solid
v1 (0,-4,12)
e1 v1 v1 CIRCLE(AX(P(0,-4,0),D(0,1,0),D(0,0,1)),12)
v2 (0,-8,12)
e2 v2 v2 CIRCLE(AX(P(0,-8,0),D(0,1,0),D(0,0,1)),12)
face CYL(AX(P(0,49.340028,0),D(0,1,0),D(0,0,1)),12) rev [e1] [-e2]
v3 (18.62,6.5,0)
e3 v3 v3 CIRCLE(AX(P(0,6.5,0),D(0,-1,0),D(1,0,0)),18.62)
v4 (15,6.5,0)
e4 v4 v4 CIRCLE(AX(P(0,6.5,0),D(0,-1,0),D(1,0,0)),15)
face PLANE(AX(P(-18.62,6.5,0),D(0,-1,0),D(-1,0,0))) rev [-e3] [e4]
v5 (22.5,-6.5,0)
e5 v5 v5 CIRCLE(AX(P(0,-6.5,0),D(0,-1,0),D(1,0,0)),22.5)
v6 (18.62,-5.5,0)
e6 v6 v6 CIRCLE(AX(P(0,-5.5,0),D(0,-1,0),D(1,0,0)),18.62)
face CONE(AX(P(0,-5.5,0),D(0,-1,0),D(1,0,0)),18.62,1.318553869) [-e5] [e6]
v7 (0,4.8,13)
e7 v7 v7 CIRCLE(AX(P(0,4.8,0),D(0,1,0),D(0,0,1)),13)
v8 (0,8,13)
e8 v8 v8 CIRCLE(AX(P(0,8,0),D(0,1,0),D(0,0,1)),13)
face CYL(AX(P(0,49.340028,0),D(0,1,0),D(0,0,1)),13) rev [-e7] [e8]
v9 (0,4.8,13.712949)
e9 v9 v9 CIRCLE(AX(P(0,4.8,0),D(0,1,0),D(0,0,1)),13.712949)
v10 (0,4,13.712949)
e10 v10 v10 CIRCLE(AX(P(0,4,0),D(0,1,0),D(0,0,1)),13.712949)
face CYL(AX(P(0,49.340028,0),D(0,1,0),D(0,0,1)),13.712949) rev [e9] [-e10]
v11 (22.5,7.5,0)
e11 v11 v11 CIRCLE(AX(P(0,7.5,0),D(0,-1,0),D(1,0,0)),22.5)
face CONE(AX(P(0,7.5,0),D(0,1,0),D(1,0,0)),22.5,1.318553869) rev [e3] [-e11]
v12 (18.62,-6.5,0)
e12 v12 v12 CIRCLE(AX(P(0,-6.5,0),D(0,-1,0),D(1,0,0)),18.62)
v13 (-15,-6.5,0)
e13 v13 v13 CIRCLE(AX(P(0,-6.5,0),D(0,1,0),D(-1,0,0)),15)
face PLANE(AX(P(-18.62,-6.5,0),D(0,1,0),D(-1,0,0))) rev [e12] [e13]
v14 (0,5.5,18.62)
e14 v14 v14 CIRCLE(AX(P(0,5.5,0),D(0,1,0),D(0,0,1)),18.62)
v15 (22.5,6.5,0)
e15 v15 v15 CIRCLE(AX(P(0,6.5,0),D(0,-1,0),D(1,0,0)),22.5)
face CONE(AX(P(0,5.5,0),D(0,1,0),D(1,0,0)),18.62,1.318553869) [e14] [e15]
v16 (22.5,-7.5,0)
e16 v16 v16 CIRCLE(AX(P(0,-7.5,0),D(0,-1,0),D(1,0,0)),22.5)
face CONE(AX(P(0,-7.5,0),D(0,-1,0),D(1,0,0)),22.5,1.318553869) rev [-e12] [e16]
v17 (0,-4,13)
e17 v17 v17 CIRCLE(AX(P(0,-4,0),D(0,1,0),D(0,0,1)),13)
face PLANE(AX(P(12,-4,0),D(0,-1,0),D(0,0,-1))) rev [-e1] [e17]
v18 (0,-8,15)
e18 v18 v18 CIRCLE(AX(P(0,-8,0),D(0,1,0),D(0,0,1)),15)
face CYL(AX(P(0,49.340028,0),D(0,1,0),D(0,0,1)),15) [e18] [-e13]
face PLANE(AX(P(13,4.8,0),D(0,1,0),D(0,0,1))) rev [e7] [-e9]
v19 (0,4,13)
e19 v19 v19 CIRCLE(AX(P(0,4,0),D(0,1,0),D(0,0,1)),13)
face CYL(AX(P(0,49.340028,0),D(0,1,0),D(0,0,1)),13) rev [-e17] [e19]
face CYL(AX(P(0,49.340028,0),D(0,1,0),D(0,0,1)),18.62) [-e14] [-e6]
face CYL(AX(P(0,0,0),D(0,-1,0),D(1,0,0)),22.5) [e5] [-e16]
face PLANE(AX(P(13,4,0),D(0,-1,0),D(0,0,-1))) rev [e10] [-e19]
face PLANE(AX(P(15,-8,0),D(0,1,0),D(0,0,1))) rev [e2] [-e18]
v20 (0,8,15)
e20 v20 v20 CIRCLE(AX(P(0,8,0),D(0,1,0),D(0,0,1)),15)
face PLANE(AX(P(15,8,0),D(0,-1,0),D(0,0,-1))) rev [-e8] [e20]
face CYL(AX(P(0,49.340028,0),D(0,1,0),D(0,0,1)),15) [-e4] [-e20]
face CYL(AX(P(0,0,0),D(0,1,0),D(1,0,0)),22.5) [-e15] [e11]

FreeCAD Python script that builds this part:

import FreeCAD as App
import Part
import Sketcher

V = App.Vector
Q = App.Units.Quantity

doc = App.newDocument("Part")
body = doc.addObject("PartDesign::Body", "Body")

# Sketch on XY plane
sketch1 = body.newObject("Sketcher::SketchObject", "Sketch")
sketch1.AttachmentSupport = (doc.getObject("XY_Plane"), [""])
sketch1.MapMode = "FlatFace"
sketch1.addGeometry([
    Part.LineSegment(V(13, 4, 0), V(13, -4, 0)),  # 0
    Part.LineSegment(V(13, -4, 0), V(12, -4, 0)),  # 1
    Part.LineSegment(V(12, -4, 0), V(12, -8, 0)),  # 2
    Part.LineSegment(V(12, -8, 0), V(15, -8, 0)),  # 3
    Part.LineSegment(V(15, -8, 0), V(15, -5.5, 0)),  # 4
    Part.LineSegment(V(15, -5.5, 0), V(18.6, -5.5, 0)),  # 5
    Part.LineSegment(V(18.6, -5.5, 0), V(18.6, 5.5, 0)),  # 6
    Part.LineSegment(V(18.6, 5.5, 0), V(15, 5.5, 0)),  # 7
    Part.LineSegment(V(15, 5.5, 0), V(15, 8, 0)),  # 8
    Part.LineSegment(V(15, 8, 0), V(13, 8, 0)),  # 9
    Part.LineSegment(V(13, 8, 0), V(13, 4.8, 0)),  # 10
    Part.LineSegment(V(13, 4.8, 0), V(13.7, 4.8, 0)),  # 11
    Part.LineSegment(V(13.7, 4.8, 0), V(13.7, 4, 0)),  # 12
    Part.LineSegment(V(13.7, 4, 0), V(13, 4, 0)),  # 13
], False)
sketch1.addConstraint([
    Sketcher.Constraint("Coincident", 0, 2, 1, 1),
    Sketcher.Constraint("Coincident", 1, 2, 2, 1),
    Sketcher.Constraint("Coincident", 2, 2, 3, 1),
    Sketcher.Constraint("Coincident", 3, 2, 4, 1),
    Sketcher.Constraint("Coincident", 4, 2, 5, 1),
    Sketcher.Constraint("Coincident", 5, 2, 6, 1),
    Sketcher.Constraint("Coincident", 6, 2, 7, 1),
    Sketcher.Constraint("Coincident", 7, 2, 8, 1),
    Sketcher.Constraint("Coincident", 8, 2, 9, 1),
    Sketcher.Constraint("Coincident", 9, 2, 10, 1),
    Sketcher.Constraint("Coincident", 10, 2, 11, 1),
    Sketcher.Constraint("Coincident", 11, 2, 12, 1),
    Sketcher.Constraint("Coincident", 12, 2, 13, 1),
    Sketcher.Constraint("Coincident", 13, 2, 0, 1),
    Sketcher.Constraint("Vertical", 0),
    Sketcher.Constraint("Horizontal", 1),
    Sketcher.Constraint("Vertical", 2),
    Sketcher.Constraint("Horizontal", 3),
    Sketcher.Constraint("Vertical", 4),
    Sketcher.Constraint("Horizontal", 5),
    Sketcher.Constraint("Vertical", 6),
    Sketcher.Constraint("Horizontal", 7),
    Sketcher.Constraint("Vertical", 8),
    Sketcher.Constraint("Horizontal", 9),
    Sketcher.Constraint("Vertical", 10),
    Sketcher.Constraint("Horizontal", 11),
    Sketcher.Constraint("Vertical", 12),
    Sketcher.Constraint("Horizontal", 13),
    Sketcher.Constraint("Symmetric", 4, 2, 7, 2, -1),
    Sketcher.Constraint("Vertical", 0, 2, 9, 2),
    Sketcher.Constraint("Equal", 4, 8),
    Sketcher.Constraint("DistanceX", 1, 2, 1, 1, Q("1 mm")),
    Sketcher.Constraint("DistanceX", 3, 1, 3, 2, Q("3 mm")),
    Sketcher.Constraint("DistanceY", 0, 2, 0, 1, Q("8 mm")),
    Sketcher.Constraint("DistanceY", 2, 2, 2, 1, Q("4 mm")),
    Sketcher.Constraint("DistanceY", 6, 1, 6, 2, Q("11 mm")),
    Sketcher.Constraint("DistanceY", 4, 1, 4, 2, Q("2.5 mm")),
    Sketcher.Constraint("DistanceY", 10, 2, 10, 1, Q("3.2 mm")),
    Sketcher.Constraint("DistanceX", -1, 1, 0, 2, Q("13 mm")),
    Sketcher.Constraint("DistanceX", 5, 1, 5, 2, Q("3.62 mm")),
    Sketcher.Constraint("DistanceX", 11, 1, 11, 2, Q("0.712949 mm")),
])
revolution = body.newObject("PartDesign::Revolution", "Revolution")
revolution.Profile = sketch1
revolution.ReferenceAxis = (sketch1, ["V_Axis"])
revolution.Angle = 360

# Sketch on XY plane
sketch2 = body.newObject("Sketcher::SketchObject", "Sketch001")
sketch2.AttachmentSupport = (doc.getObject("XY_Plane"), [""])
sketch2.MapMode = "FlatFace"
sketch2.addGeometry([
    Part.LineSegment(V(-18.6, -5.5, 0), V(-22.5, -6.5, 0)),  # 0
    Part.LineSegment(V(-22.5, -6.5, 0), V(-22.5, -7.5, 0)),  # 1
    Part.LineSegment(V(-22.5, -7.5, 0), V(-18.6, -6.5, 0)),  # 2
    Part.LineSegment(V(-18.6, -6.5, 0), V(-15, -6.5, 0)),  # 3
    Part.LineSegment(V(-15, -6.5, 0), V(-15, -5.5, 0)),  # 4
    Part.LineSegment(V(-15, -5.5, 0), V(-18.6, -5.5, 0)),  # 5
], False)
sketch2.addConstraint([
    Sketcher.Constraint("Coincident", 0, 2, 1, 1),
    Sketcher.Constraint("Coincident", 1, 2, 2, 1),
    Sketcher.Constraint("Coincident", 2, 2, 3, 1),
    Sketcher.Constraint("Coincident", 3, 2, 4, 1),
    Sketcher.Constraint("Coincident", 4, 2, 5, 1),
    Sketcher.Constraint("Coincident", 5, 2, 0, 1),
    Sketcher.Constraint("Vertical", 1),
    Sketcher.Constraint("Horizontal", 3),
    Sketcher.Constraint("Vertical", 4),
    Sketcher.Constraint("Horizontal", 5),
    Sketcher.Constraint("Parallel", 0, 2),
    Sketcher.Constraint("Horizontal", 0, 2, 2, 2),
    Sketcher.Constraint("Vertical", 2, 2, 5, 2),
    Sketcher.Constraint("DistanceY", 1, 2, 1, 1, Q("1 mm")),
    Sketcher.Constraint("DistanceX", 3, 2, -1, 1, Q("15 mm")),
    Sketcher.Constraint("DistanceX", 3, 1, 3, 2, Q("3.62 mm")),
    Sketcher.Constraint("DistanceX", 0, 2, -1, 1, Q("22.5 mm")),
    Sketcher.Constraint("DistanceY", 0, 2, -1, 1, Q("6.5 mm")),
])
revolution2 = body.newObject("PartDesign::Revolution", "Revolution001")
revolution2.Profile = sketch2
revolution2.ReferenceAxis = (sketch2, ["V_Axis"])
revolution2.Angle = 360
doc.recompute()

mirrored = body.newObject("PartDesign::Mirrored", "Mirrored")
mirrored.Originals = [revolution2]
mirrored.MirrorPlane = (doc.getObject("XZ_Plane"), [""])
body.Tip = mirrored

doc.recompute()
